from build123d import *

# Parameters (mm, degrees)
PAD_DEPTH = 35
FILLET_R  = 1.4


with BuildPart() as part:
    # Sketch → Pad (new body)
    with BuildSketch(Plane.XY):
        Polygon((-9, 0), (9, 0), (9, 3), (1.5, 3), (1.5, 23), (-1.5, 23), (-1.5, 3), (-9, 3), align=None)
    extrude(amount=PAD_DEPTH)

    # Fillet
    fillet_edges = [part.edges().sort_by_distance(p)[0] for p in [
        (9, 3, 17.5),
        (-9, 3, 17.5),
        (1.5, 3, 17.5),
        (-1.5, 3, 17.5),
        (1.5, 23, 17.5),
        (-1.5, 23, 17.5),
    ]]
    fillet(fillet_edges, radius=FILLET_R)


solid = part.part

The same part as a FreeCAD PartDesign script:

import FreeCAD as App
import Part
import Sketcher

V = App.Vector
Q = App.Units.Quantity


def edges_at(feature, points):
    """Names of the edges that pass closest to the given points."""
    edges = feature.Shape.Edges
    near = lambda p: min(range(len(edges)), key=lambda i: edges[i].distToShape(Part.Vertex(*p))[0])
    return sorted({f"Edge{near(p) + 1}" for p in points})

doc = App.newDocument("Part")
body = doc.addObject("PartDesign::Body", "Body")

sketch1 = body.newObject("Sketcher::SketchObject", "Sketch")
sketch1.AttachmentSupport = (doc.getObject("XY_Plane"), [""])
sketch1.MapMode = "FlatFace"
sketch1.addGeometry(Part.LineSegment(V(-9, 0, 0), V(9, 0, 0)), False)
sketch1.addGeometry(Part.LineSegment(V(9, 0, 0), V(9, 3, 0)), False)
sketch1.addGeometry(Part.LineSegment(V(9, 3, 0), V(1.5, 3, 0)), False)
sketch1.addGeometry(Part.LineSegment(V(1.5, 3, 0), V(1.5, 23, 0)), False)
sketch1.addGeometry(Part.LineSegment(V(1.5, 23, 0), V(-1.5, 23, 0)), False)
sketch1.addGeometry(Part.LineSegment(V(-1.5, 23, 0), V(-1.5, 3, 0)), False)
sketch1.addGeometry(Part.LineSegment(V(-1.5, 3, 0), V(-9, 3, 0)), False)
sketch1.addGeometry(Part.LineSegment(V(-9, 3, 0), V(-9, 0, 0)), False)
sketch1.addConstraint(Sketcher.Constraint("Coincident", 0, 2, 1, 1))
sketch1.addConstraint(Sketcher.Constraint("Coincident", 1, 2, 2, 1))
sketch1.addConstraint(Sketcher.Constraint("Coincident", 2, 2, 3, 1))
sketch1.addConstraint(Sketcher.Constraint("Coincident", 3, 2, 4, 1))
sketch1.addConstraint(Sketcher.Constraint("Coincident", 4, 2, 5, 1))
sketch1.addConstraint(Sketcher.Constraint("Coincident", 5, 2, 6, 1))
sketch1.addConstraint(Sketcher.Constraint("Coincident", 6, 2, 7, 1))
sketch1.addConstraint(Sketcher.Constraint("Coincident", 7, 2, 0, 1))
sketch1.addConstraint(Sketcher.Constraint("Horizontal", 0))
sketch1.addConstraint(Sketcher.Constraint("Vertical", 1))
sketch1.addConstraint(Sketcher.Constraint("Horizontal", 2))
sketch1.addConstraint(Sketcher.Constraint("Vertical", 3))
sketch1.addConstraint(Sketcher.Constraint("Horizontal", 4))
sketch1.addConstraint(Sketcher.Constraint("Vertical", 5))
sketch1.addConstraint(Sketcher.Constraint("Horizontal", 6))
sketch1.addConstraint(Sketcher.Constraint("Vertical", 7))
sketch1.addConstraint(Sketcher.Constraint("Symmetric", 0, 2, 7, 2, -1, 1))
sketch1.addConstraint(Sketcher.Constraint("Symmetric", 2, 2, 5, 2, -2))
sketch1.addConstraint(Sketcher.Constraint("Equal", 4, 1))
sketch1.addConstraint(Sketcher.Constraint("DistanceX", 0, 1, 0, 2, Q("18 mm")))
sketch1.addConstraint(Sketcher.Constraint("DistanceX", 4, 2, 4, 1, Q("3 mm")))
sketch1.addConstraint(Sketcher.Constraint("DistanceY", 3, 1, 3, 2, Q("20 mm")))
pad1 = body.newObject("PartDesign::Pad", "Pad")
pad1.Profile = sketch1
pad1.Length = 35
doc.recompute()

fillet = body.newObject("PartDesign::Fillet", "Fillet")
fillet.Base = (pad1, edges_at(pad1, [
    (9, 3, 17.5),
    (-9, 3, 17.5),
    (1.5, 3, 17.5),
    (-1.5, 3, 17.5),
    (1.5, 23, 17.5),
    (-1.5, 23, 17.5),
]))
fillet.Radius = 1.4

doc.recompute()
